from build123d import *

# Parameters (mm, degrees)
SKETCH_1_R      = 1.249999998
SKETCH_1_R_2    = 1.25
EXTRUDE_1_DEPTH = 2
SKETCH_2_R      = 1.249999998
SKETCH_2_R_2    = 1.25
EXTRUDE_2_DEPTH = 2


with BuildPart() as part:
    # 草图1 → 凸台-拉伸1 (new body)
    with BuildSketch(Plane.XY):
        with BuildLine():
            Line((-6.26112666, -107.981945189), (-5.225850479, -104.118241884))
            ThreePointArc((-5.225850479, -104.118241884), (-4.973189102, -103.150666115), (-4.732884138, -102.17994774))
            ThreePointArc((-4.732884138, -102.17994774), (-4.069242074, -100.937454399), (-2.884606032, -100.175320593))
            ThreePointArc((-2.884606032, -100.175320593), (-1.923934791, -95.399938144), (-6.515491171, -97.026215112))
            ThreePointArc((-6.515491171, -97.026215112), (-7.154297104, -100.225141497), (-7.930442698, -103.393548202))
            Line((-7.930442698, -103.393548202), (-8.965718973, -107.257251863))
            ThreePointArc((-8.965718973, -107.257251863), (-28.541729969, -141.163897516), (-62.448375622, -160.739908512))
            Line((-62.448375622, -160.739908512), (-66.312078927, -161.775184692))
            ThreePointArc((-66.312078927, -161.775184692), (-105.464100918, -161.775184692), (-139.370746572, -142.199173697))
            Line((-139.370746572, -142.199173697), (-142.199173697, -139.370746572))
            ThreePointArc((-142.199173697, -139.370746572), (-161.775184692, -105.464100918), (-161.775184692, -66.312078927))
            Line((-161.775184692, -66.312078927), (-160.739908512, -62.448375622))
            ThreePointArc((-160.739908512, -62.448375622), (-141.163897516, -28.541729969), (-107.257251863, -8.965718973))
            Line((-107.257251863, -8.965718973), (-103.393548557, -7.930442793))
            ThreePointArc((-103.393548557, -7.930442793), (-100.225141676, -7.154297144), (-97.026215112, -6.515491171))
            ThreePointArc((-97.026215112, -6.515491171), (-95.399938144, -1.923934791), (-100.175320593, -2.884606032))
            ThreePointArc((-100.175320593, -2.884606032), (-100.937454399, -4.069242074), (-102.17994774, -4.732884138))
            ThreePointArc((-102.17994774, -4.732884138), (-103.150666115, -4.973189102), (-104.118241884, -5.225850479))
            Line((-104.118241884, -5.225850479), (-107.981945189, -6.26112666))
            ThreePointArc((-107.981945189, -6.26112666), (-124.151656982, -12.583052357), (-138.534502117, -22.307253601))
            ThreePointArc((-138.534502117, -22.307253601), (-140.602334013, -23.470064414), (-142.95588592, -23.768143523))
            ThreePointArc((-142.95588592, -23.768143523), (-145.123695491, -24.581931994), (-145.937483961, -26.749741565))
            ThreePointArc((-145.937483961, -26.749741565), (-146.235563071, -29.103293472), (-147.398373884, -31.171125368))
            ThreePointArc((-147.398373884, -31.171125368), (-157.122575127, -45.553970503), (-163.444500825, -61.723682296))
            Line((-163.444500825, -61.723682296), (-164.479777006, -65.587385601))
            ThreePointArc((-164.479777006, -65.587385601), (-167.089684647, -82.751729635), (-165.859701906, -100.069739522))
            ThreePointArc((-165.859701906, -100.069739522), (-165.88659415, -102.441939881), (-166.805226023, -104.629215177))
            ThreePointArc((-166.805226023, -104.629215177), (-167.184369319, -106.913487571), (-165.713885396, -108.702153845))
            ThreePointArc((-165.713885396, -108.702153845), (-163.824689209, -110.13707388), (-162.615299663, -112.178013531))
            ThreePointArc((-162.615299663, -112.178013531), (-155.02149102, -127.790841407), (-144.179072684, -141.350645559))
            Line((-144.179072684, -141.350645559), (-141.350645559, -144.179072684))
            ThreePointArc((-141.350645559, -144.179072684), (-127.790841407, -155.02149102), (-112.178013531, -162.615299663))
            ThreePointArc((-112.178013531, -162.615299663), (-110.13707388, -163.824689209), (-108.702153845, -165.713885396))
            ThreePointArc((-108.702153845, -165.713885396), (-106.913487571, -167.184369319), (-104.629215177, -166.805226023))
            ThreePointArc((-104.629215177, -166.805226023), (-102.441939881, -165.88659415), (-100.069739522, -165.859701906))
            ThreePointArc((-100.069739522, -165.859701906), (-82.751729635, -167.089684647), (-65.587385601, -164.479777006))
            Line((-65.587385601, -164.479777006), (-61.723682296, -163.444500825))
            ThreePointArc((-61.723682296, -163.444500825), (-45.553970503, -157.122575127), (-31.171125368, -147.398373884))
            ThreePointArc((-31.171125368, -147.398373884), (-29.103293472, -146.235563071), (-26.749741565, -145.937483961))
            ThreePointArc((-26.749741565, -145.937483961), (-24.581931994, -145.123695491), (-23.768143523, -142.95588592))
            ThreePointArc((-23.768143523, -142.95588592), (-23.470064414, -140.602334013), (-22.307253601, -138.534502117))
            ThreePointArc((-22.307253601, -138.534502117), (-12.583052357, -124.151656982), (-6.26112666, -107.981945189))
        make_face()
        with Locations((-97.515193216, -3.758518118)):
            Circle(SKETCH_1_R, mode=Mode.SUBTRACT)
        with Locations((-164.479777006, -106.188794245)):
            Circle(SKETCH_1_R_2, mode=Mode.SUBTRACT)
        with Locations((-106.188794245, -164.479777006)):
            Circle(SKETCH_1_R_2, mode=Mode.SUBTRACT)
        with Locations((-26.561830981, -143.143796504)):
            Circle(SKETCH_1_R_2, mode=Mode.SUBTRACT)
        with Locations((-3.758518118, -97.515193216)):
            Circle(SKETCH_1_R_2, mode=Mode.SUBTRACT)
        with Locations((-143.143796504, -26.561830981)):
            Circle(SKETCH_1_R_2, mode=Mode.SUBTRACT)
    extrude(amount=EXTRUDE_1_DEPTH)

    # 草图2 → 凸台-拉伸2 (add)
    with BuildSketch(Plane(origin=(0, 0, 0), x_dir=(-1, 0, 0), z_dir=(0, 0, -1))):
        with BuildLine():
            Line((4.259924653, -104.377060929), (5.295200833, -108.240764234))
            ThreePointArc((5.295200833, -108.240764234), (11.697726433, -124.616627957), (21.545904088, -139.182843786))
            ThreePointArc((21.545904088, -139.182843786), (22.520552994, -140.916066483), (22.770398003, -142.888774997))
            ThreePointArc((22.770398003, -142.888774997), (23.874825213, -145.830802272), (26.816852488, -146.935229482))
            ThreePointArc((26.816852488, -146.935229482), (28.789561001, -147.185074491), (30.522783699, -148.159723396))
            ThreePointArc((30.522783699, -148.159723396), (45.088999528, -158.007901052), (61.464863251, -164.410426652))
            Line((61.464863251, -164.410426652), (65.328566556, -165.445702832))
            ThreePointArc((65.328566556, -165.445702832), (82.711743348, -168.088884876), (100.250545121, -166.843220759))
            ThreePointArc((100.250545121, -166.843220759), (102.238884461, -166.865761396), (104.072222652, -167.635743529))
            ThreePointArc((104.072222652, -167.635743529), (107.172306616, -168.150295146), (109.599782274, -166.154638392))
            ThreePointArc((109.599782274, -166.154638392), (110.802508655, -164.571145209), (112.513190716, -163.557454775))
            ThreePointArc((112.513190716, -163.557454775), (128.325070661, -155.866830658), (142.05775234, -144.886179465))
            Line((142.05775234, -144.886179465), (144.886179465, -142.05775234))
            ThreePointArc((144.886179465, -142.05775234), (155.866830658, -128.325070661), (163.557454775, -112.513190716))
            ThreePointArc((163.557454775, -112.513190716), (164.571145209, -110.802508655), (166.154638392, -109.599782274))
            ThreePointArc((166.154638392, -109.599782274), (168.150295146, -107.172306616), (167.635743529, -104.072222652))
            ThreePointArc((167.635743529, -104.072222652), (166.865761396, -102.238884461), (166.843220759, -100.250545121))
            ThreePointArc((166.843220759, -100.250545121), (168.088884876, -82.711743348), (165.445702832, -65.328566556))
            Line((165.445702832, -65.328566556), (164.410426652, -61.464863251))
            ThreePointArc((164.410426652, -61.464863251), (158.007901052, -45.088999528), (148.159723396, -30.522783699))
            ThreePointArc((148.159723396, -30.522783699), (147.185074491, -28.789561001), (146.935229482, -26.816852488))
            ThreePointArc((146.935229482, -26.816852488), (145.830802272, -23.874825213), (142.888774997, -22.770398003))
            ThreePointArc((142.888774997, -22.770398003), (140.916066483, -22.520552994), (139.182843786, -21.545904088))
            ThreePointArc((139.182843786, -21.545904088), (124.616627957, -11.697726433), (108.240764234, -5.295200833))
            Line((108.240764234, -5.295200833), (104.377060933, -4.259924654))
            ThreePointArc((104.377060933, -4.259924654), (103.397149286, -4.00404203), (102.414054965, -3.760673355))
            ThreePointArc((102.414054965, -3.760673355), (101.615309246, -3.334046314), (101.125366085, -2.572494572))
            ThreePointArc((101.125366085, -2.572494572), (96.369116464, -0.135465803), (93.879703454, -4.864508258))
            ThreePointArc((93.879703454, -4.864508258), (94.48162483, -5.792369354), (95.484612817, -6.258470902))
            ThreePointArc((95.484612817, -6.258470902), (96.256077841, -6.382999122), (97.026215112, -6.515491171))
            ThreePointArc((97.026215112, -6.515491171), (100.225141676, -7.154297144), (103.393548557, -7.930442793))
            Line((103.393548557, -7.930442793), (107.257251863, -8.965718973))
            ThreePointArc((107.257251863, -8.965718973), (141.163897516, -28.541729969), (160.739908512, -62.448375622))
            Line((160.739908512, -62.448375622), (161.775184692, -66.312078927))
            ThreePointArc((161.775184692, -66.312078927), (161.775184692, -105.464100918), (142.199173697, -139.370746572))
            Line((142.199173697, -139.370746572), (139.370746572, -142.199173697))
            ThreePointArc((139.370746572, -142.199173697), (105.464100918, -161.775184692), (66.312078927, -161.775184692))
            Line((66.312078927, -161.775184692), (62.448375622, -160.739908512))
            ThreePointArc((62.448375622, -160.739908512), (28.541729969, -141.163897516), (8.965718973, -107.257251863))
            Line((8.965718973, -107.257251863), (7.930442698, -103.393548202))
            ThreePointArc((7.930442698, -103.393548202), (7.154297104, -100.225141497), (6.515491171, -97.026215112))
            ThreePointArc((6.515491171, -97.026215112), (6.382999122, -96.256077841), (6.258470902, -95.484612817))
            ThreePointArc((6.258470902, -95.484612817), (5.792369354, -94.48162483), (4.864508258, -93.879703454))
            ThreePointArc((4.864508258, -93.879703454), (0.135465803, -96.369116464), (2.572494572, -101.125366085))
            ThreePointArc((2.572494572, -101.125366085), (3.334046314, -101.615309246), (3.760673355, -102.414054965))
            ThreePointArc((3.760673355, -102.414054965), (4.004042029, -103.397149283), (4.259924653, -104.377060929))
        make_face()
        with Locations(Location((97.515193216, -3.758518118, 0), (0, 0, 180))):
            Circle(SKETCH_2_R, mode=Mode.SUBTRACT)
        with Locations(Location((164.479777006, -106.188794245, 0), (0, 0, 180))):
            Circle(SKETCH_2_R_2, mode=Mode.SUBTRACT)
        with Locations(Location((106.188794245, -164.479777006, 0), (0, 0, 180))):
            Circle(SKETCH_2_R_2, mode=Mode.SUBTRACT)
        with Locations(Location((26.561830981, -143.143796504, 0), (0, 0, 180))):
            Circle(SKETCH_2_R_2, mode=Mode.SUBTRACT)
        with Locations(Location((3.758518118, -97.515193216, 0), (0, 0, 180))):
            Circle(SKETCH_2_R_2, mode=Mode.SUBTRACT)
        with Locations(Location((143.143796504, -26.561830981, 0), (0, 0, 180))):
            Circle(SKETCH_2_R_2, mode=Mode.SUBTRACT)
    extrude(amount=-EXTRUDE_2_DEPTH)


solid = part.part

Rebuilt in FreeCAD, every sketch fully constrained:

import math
import FreeCAD as App
import Part
import Sketcher

V = App.Vector
Q = App.Units.Quantity

doc = App.newDocument("Part")
body = doc.addObject("PartDesign::Body", "Body")

# Sketch on XY plane
sketch1 = body.newObject("Sketcher::SketchObject", "Sketch")
sketch1.AttachmentSupport = (doc.getObject("XY_Plane"), [""])
sketch1.MapMode = "FlatFace"
sketch1.addGeometry([
    Part.LineSegment(V(-6.3, -108, 0), V(-5.2, -104.1, 0)),  # 0
    Part.ArcOfCircle(Part.Circle(V(-81, -83.8, 0), V(0, 0, 1), 78.4), math.radians(-15), math.radians(-13.54)),  # 1
    Part.ArcOfCircle(Part.Circle(V(-2, -102.8, 0), V(0, 0, 1), 2.8), math.radians(108), math.radians(166)),  # 2
    Part.ArcOfCircle(Part.Circle(V(-3.8, -97.5, 0), V(0, 0, 1), 2.8), math.radians(-72), math.radians(170)),  # 3
    Part.ArcOfCircle(Part.Circle(V(-81, -83.8, 0), V(0, 0, 1), 75.6), math.radians(-15), math.radians(-10.06)),  # 4
    Part.LineSegment(V(-7.9, -103.4, 0), V(-9, -107.3, 0)),  # 5
    Part.ArcOfCircle(Part.Circle(V(-82, -87.7, 0), V(0, 0, 1), 75.6), math.radians(-75), math.radians(-15)),  # 6
    Part.LineSegment(V(-62.4, -160.7, 0), V(-66.3, -161.8, 0)),  # 7
    Part.ArcOfCircle(Part.Circle(V(-85.9, -88.7, 0), V(0, 0, 1), 75.6), math.radians(-135), math.radians(-75)),  # 8
    Part.LineSegment(V(-139.4, -142.2, 0), V(-142.2, -139.4, 0)),  # 9
    Part.ArcOfCircle(Part.Circle(V(-88.7, -85.9, 0), V(0, 0, 1), 75.6), math.radians(165), math.radians(225)),  # 10
    Part.LineSegment(V(-161.8, -66.3, 0), V(-160.7, -62.4, 0)),  # 11
    Part.ArcOfCircle(Part.Circle(V(-87.7, -82, 0), V(0, 0, 1), 75.6), math.radians(105), math.radians(165)),  # 12
    Part.LineSegment(V(-107.3, -9, 0), V(-103.4, -7.9, 0)),  # 13
    Part.ArcOfCircle(Part.Circle(V(-83.8, -81, 0), V(0, 0, 1), 75.6), math.radians(100.06), math.radians(105)),  # 14
    Part.ArcOfCircle(Part.Circle(V(-97.5, -3.8, 0), V(0, 0, 1), 2.8), math.radians(-80), math.radians(162)),  # 15
    Part.ArcOfCircle(Part.Circle(V(-102.8, -2, 0), V(0, 0, 1), 2.8), math.radians(-76), math.radians(-18)),  # 16
    Part.ArcOfCircle(Part.Circle(V(-83.8, -81, 0), V(0, 0, 1), 78.4), math.radians(103.54), math.radians(105)),  # 17
    Part.LineSegment(V(-104.1, -5.2, 0), V(-108, -6.3, 0)),  # 18
    Part.ArcOfCircle(Part.Circle(V(-87.7, -82, 0), V(0, 0, 1), 78.4), math.radians(105), math.radians(130)),  # 19
    Part.ArcOfCircle(Part.Circle(V(-142.5, -17.6, 0), V(0, 0, 1), 6.2), math.radians(-94), math.radians(-50)),  # 20
    Part.ArcOfCircle(Part.Circle(V(-143.1, -26.6, 0), V(0, 0, 1), 2.8), math.radians(86), math.radians(184)),  # 21
    Part.ArcOfCircle(Part.Circle(V(-152.1, -27.2, 0), V(0, 0, 1), 6.2), math.radians(-40), math.radians(4)),  # 22
    Part.ArcOfCircle(Part.Circle(V(-87.7, -82, 0), V(0, 0, 1), 78.4), math.radians(140), math.radians(165)),  # 23
    Part.LineSegment(V(-163.4, -61.7, 0), V(-164.5, -65.6, 0)),  # 24
    Part.ArcOfCircle(Part.Circle(V(-88.7, -85.9, 0), V(0, 0, 1), 78.4), math.radians(165), math.radians(190)),  # 25
    Part.ArcOfCircle(Part.Circle(V(-171.9, -101.2, 0), V(0, 0, 1), 6.2), math.radians(-34), math.radians(10)),  # 26
    Part.ArcOfCircle(Part.Circle(V(-164.5, -106.2, 0), V(0, 0, 1), 2.8), math.radians(146), math.radians(244)),  # 27
    Part.ArcOfCircle(Part.Circle(V(-168.4, -114.2, 0), V(0, 0, 1), 6.2), math.radians(20), math.radians(64)),  # 28
    Part.ArcOfCircle(Part.Circle(V(-88.7, -85.9, 0), V(0, 0, 1), 78.4), math.radians(-160), math.radians(-135)),  # 29
    Part.LineSegment(V(-144.2, -141.4, 0), V(-141.4, -144.2, 0)),  # 30
    Part.ArcOfCircle(Part.Circle(V(-85.9, -88.7, 0), V(0, 0, 1), 78.4), math.radians(-135), math.radians(-110)),  # 31
    Part.ArcOfCircle(Part.Circle(V(-114.2, -168.4, 0), V(0, 0, 1), 6.2), math.radians(26), math.radians(70)),  # 32
    Part.ArcOfCircle(Part.Circle(V(-106.2, -164.5, 0), V(0, 0, 1), 2.8), math.radians(-154), math.radians(-56)),  # 33
    Part.ArcOfCircle(Part.Circle(V(-101.2, -171.9, 0), V(0, 0, 1), 6.2), math.radians(80), math.radians(124)),  # 34
    Part.ArcOfCircle(Part.Circle(V(-85.9, -88.7, 0), V(0, 0, 1), 78.4), math.radians(-100), math.radians(-75)),  # 35
    Part.LineSegment(V(-65.6, -164.5, 0), V(-61.7, -163.4, 0)),  # 36
    Part.ArcOfCircle(Part.Circle(V(-82, -87.7, 0), V(0, 0, 1), 78.4), math.radians(-75), math.radians(-50)),  # 37
    Part.ArcOfCircle(Part.Circle(V(-27.2, -152.1, 0), V(0, 0, 1), 6.2), math.radians(86), math.radians(130)),  # 38
    Part.ArcOfCircle(Part.Circle(V(-26.6, -143.1, 0), V(0, 0, 1), 2.8), math.radians(-94), math.radians(4)),  # 39
    Part.ArcOfCircle(Part.Circle(V(-17.6, -142.5, 0), V(0, 0, 1), 6.2), math.radians(140), math.radians(184)),  # 40
    Part.ArcOfCircle(Part.Circle(V(-82, -87.7, 0), V(0, 0, 1), 78.4), math.radians(-40), math.radians(-15)),  # 41
    Part.Circle(V(-106.2, -164.5, 0), V(0, 0, 1), 1.2),  # 42
    Part.Circle(V(-164.5, -106.2, 0), V(0, 0, 1), 1.2),  # 43
    Part.Circle(V(-26.6, -143.1, 0), V(0, 0, 1), 1.2),  # 44
    Part.Circle(V(-3.8, -97.5, 0), V(0, 0, 1), 1.2),  # 45
    Part.Circle(V(-143.1, -26.6, 0), V(0, 0, 1), 1.2),  # 46
    Part.Circle(V(-97.5, -3.8, 0), V(0, 0, 1), 1.2),  # 47
], False)
sketch1.addConstraint([
    Sketcher.Constraint("Tangent", 0, 2, 1, 1),
    Sketcher.Constraint("Tangent", 1, 2, 2, 2),
    Sketcher.Constraint("Tangent", 2, 1, 3, 1),
    Sketcher.Constraint("Tangent", 3, 2, 4, 2),
    Sketcher.Constraint("Tangent", 4, 1, 5, 1),
    Sketcher.Constraint("Tangent", 5, 2, 6, 2),
    Sketcher.Constraint("Tangent", 6, 1, 7, 1),
    Sketcher.Constraint("Tangent", 7, 2, 8, 2),
    Sketcher.Constraint("Tangent", 8, 1, 9, 1),
    Sketcher.Constraint("Tangent", 9, 2, 10, 2),
    Sketcher.Constraint("Tangent", 10, 1, 11, 1),
    Sketcher.Constraint("Tangent", 11, 2, 12, 2),
    Sketcher.Constraint("Tangent", 12, 1, 13, 1),
    Sketcher.Constraint("Tangent", 13, 2, 14, 2),
    Sketcher.Constraint("Tangent", 14, 1, 15, 1),
    Sketcher.Constraint("Tangent", 15, 2, 16, 2),
    Sketcher.Constraint("Tangent", 16, 1, 17, 1),
    Sketcher.Constraint("Tangent", 17, 2, 18, 1),
    Sketcher.Constraint("Tangent", 18, 2, 19, 1),
    Sketcher.Constraint("Tangent", 19, 2, 20, 2),
    Sketcher.Constraint("Tangent", 20, 1, 21, 1),
    Sketcher.Constraint("Tangent", 21, 2, 22, 2),
    Sketcher.Constraint("Tangent", 22, 1, 23, 1),
    Sketcher.Constraint("Tangent", 23, 2, 24, 1),
    Sketcher.Constraint("Tangent", 24, 2, 25, 1),
    Sketcher.Constraint("Tangent", 25, 2, 26, 2),
    Sketcher.Constraint("Tangent", 26, 1, 27, 1),
    Sketcher.Constraint("Tangent", 27, 2, 28, 2),
    Sketcher.Constraint("Tangent", 28, 1, 29, 1),
    Sketcher.Constraint("Tangent", 29, 2, 30, 1),
    Sketcher.Constraint("Tangent", 30, 2, 31, 1),
    Sketcher.Constraint("Tangent", 31, 2, 32, 2),
    Sketcher.Constraint("Tangent", 32, 1, 33, 1),
    Sketcher.Constraint("Tangent", 33, 2, 34, 2),
    Sketcher.Constraint("Tangent", 34, 1, 35, 1),
    Sketcher.Constraint("Tangent", 35, 2, 36, 1),
    Sketcher.Constraint("Tangent", 36, 2, 37, 1),
    Sketcher.Constraint("Tangent", 37, 2, 38, 2),
    Sketcher.Constraint("Tangent", 38, 1, 39, 1),
    Sketcher.Constraint("Tangent", 39, 2, 40, 2),
    Sketcher.Constraint("Tangent", 40, 1, 41, 1),
    Sketcher.Constraint("Tangent", 41, 2, 0, 1),
    Sketcher.Constraint("Coincident", 4, 3, 1, 3),
    Sketcher.Constraint("Coincident", 17, 3, 14, 3),
    Sketcher.Constraint("Coincident", 19, 3, 12, 3),
    Sketcher.Constraint("Coincident", 23, 3, 12, 3),
    Sketcher.Constraint("Coincident", 25, 3, 10, 3),
    Sketcher.Constraint("Coincident", 29, 3, 10, 3),
    Sketcher.Constraint("Coincident", 31, 3, 8, 3),
    Sketcher.Constraint("Coincident", 35, 3, 8, 3),
    Sketcher.Constraint("Coincident", 37, 3, 6, 3),
    Sketcher.Constraint("Coincident", 41, 3, 6, 3),
    Sketcher.Constraint("Coincident", 42, 3, 33, 3),
    Sketcher.Constraint("Coincident", 43, 3, 27, 3),
    Sketcher.Constraint("Coincident", 44, 3, 39, 3),
    Sketcher.Constraint("Coincident", 45, 3, 3, 3),
    Sketcher.Constraint("Coincident", 46, 3, 21, 3),
    Sketcher.Constraint("Coincident", 47, 3, 15, 3),
    Sketcher.Constraint("Equal", 2, 3),
    Sketcher.Constraint("Equal", 4, 6),
    Sketcher.Constraint("Equal", 6, 8),
    Sketcher.Constraint("Equal", 8, 10),
    Sketcher.Constraint("Equal", 10, 12),
    Sketcher.Constraint("Equal", 12, 14),
    Sketcher.Constraint("Equal", 3, 15),
    Sketcher.Constraint("Equal", 15, 16),
    Sketcher.Constraint("Equal", 1, 17),
    Sketcher.Constraint("Equal", 16, 21),
    Sketcher.Constraint("Equal", 20, 22),
    Sketcher.Constraint("Equal", 19, 23),
    Sketcher.Constraint("Equal", 23, 25),
    Sketcher.Constraint("Equal", 22, 26),
    Sketcher.Constraint("Equal", 21, 27),
    Sketcher.Constraint("Equal", 26, 28),
    Sketcher.Constraint("Equal", 25, 29),
    Sketcher.Constraint("Equal", 29, 31),
    Sketcher.Constraint("Equal", 28, 32),
    Sketcher.Constraint("Equal", 27, 33),
    Sketcher.Constraint("Equal", 32, 34),
    Sketcher.Constraint("Equal", 31, 35),
    Sketcher.Constraint("Equal", 35, 37),
    Sketcher.Constraint("Equal", 34, 38),
    Sketcher.Constraint("Equal", 33, 39),
    Sketcher.Constraint("Equal", 38, 40),
    Sketcher.Constraint("Equal", 37, 41),
    Sketcher.Constraint("Equal", 42, 43),
    Sketcher.Constraint("Equal", 43, 44),
    Sketcher.Constraint("Equal", 44, 45),
    Sketcher.Constraint("Equal", 45, 46),
    Sketcher.Constraint("Equal", 46, 47),
    Sketcher.Constraint("Parallel", 0, 5),
    Sketcher.Constraint("Parallel", 5, 11),
    Sketcher.Constraint("Parallel", 7, 13),
    Sketcher.Constraint("Horizontal", 42, 3, 35, 2),
    Sketcher.Constraint("Vertical", 43, 3, 24, 2),
    Sketcher.Constraint("Equal", 5, 7),
    Sketcher.Constraint("Equal", 7, 9),
    Sketcher.Constraint("Equal", 9, 11),
    Sketcher.Constraint("Equal", 11, 13),
    Sketcher.Constraint("Diameter", 42, 2.5),
    Sketcher.Constraint("Radius", 2, 2.8),
    Sketcher.Constraint("Angle", 0, Q("75 deg")),
    Sketcher.Constraint("Angle", 7, Q("-165 deg")),
    Sketcher.Constraint("Angle", 9, Q("135 deg")),
    Sketcher.Constraint("Distance", 0, 4.0),
    Sketcher.Constraint("Radius", 4, 75.635898),
    Sketcher.Constraint("Radius", 19, 78.435898),
    Sketcher.Constraint("Radius", 20, 6.179842),
    Sketcher.Constraint("DistanceX", 23, 2, -1, 1, 163.444501),
    Sketcher.Constraint("DistanceX", 25, 2, -1, 1, 165.859702),
    Sketcher.Constraint("DistanceY", 31, 2, -1, 1, 162.6153),
    Sketcher.Constraint("DistanceY", 34, 1, -1, 1, 165.859702),
    Sketcher.Constraint("DistanceX", 3, 3, -1, 1, 3.758518),
    Sketcher.Constraint("DistanceY", 15, 3, -1, 1, 3.758518),
    Sketcher.Constraint("DistanceX", 20, 3, -1, 1, 142.541151),
    Sketcher.Constraint("DistanceY", 21, 3, -1, 1, 26.561831),
    Sketcher.Constraint("DistanceX", 39, 3, -1, 1, 26.561831),
    Sketcher.Constraint("DistanceY", 40, 3, -1, 1, 142.541151),
])
pad1 = body.newObject("PartDesign::Pad", "Pad")
pad1.Profile = sketch1
pad1.Length = 2

# Sketch on XY plane
sketch2 = body.newObject("Sketcher::SketchObject", "Sketch001")
sketch2.AttachmentSupport = (doc.getObject("XY_Plane"), [""])
sketch2.MapMode = "FlatFace"
sketch2.addGeometry([
    Part.LineSegment(V(-4.3, -104.4, 0), V(-5.3, -108.2, 0)),  # 0
    Part.ArcOfCircle(Part.Circle(V(-82, -87.7, 0), V(0, 0, 1), 79.4), math.radians(-40), math.radians(-15)),  # 1
    Part.ArcOfCircle(Part.Circle(V(-17.6, -142.5, 0), V(0, 0, 1), 5.2), math.radians(140), math.radians(184)),  # 2
    Part.ArcOfCircle(Part.Circle(V(-26.6, -143.1, 0), V(0, 0, 1), 3.8), math.radians(-94), math.radians(4)),  # 3
    Part.ArcOfCircle(Part.Circle(V(-27.2, -152.1, 0), V(0, 0, 1), 5.2), math.radians(86), math.radians(130)),  # 4
    Part.ArcOfCircle(Part.Circle(V(-82, -87.7, 0), V(0, 0, 1), 79.4), math.radians(-75), math.radians(-50)),  # 5
    Part.LineSegment(V(-61.5, -164.4, 0), V(-65.3, -165.4, 0)),  # 6
    Part.ArcOfCircle(Part.Circle(V(-85.9, -88.7, 0), V(0, 0, 1), 79.4), math.radians(-100), math.radians(-75)),  # 7
    Part.ArcOfCircle(Part.Circle(V(-101.2, -171.9, 0), V(0, 0, 1), 5.2), math.radians(80), math.radians(124)),  # 8
    Part.ArcOfCircle(Part.Circle(V(-106.2, -164.5, 0), V(0, 0, 1), 3.8), math.radians(-154), math.radians(-56)),  # 9
    Part.ArcOfCircle(Part.Circle(V(-114.2, -168.4, 0), V(0, 0, 1), 5.2), math.radians(26), math.radians(70)),  # 10
    Part.ArcOfCircle(Part.Circle(V(-85.9, -88.7, 0), V(0, 0, 1), 79.4), math.radians(-135), math.radians(-110)),  # 11
    Part.LineSegment(V(-142.1, -144.9, 0), V(-144.9, -142.1, 0)),  # 12
    Part.ArcOfCircle(Part.Circle(V(-88.7, -85.9, 0), V(0, 0, 1), 79.4), math.radians(-160), math.radians(-135)),  # 13
    Part.ArcOfCircle(Part.Circle(V(-168.4, -114.2, 0), V(0, 0, 1), 5.2), math.radians(20), math.radians(64)),  # 14
    Part.ArcOfCircle(Part.Circle(V(-164.5, -106.2, 0), V(0, 0, 1), 3.8), math.radians(146), math.radians(244)),  # 15
    Part.ArcOfCircle(Part.Circle(V(-171.9, -101.2, 0), V(0, 0, 1), 5.2), math.radians(-34), math.radians(10)),  # 16
    Part.ArcOfCircle(Part.Circle(V(-88.7, -85.9, 0), V(0, 0, 1), 79.4), math.radians(165), math.radians(190)),  # 17
    Part.LineSegment(V(-165.4, -65.3, 0), V(-164.4, -61.5, 0)),  # 18
    Part.ArcOfCircle(Part.Circle(V(-87.7, -82, 0), V(0, 0, 1), 79.4), math.radians(140), math.radians(165)),  # 19
    Part.ArcOfCircle(Part.Circle(V(-152.1, -27.2, 0), V(0, 0, 1), 5.2), math.radians(-40), math.radians(4)),  # 20
    Part.ArcOfCircle(Part.Circle(V(-143.1, -26.6, 0), V(0, 0, 1), 3.8), math.radians(86), math.radians(184)),  # 21
    Part.ArcOfCircle(Part.Circle(V(-142.5, -17.6, 0), V(0, 0, 1), 5.2), math.radians(-94), math.radians(-50)),  # 22
    Part.ArcOfCircle(Part.Circle(V(-87.7, -82, 0), V(0, 0, 1), 79.4), math.radians(105), math.radians(130)),  # 23
    Part.LineSegment(V(-108.2, -5.3, 0), V(-104.4, -4.3, 0)),  # 24
    Part.ArcOfCircle(Part.Circle(V(-83.8, -81, 0), V(0, 0, 1), 79.4), math.radians(103.54), math.radians(105)),  # 25
    Part.ArcOfCircle(Part.Circle(V(-102.8, -2, 0), V(0, 0, 1), 1.8), math.radians(-76), math.radians(-18)),  # 26
    Part.ArcOfCircle(Part.Circle(V(-97.5, -3.8, 0), V(0, 0, 1), 3.8), math.radians(-17), math.radians(162)),  # 27
    Part.ArcOfCircle(Part.Circle(V(-95.8, -4.3, 0), V(0, 0, 1), 2), math.radians(-81), math.radians(-17)),  # 28
    Part.ArcOfCircle(Part.Circle(V(-83.8, -81, 0), V(0, 0, 1), 75.6), math.radians(98.87), math.radians(100.06)),  # 29
    Part.ArcOfCircle(Part.Circle(V(-83.8, -81, 0), V(0, 0, 1), 75.6), math.radians(100.06), math.radians(105)),  # 30
    Part.LineSegment(V(-103.4, -7.9, 0), V(-107.3, -9, 0)),  # 31
    Part.ArcOfCircle(Part.Circle(V(-87.7, -82, 0), V(0, 0, 1), 75.6), math.radians(105), math.radians(165)),  # 32
    Part.LineSegment(V(-160.7, -62.4, 0), V(-161.8, -66.3, 0)),  # 33
    Part.ArcOfCircle(Part.Circle(V(-88.7, -85.9, 0), V(0, 0, 1), 75.6), math.radians(165), math.radians(225)),  # 34
    Part.LineSegment(V(-142.2, -139.4, 0), V(-139.4, -142.2, 0)),  # 35
    Part.ArcOfCircle(Part.Circle(V(-85.9, -88.7, 0), V(0, 0, 1), 75.6), math.radians(-135), math.radians(-75)),  # 36
    Part.LineSegment(V(-66.3, -161.8, 0), V(-62.4, -160.7, 0)),  # 37
    Part.ArcOfCircle(Part.Circle(V(-82, -87.7, 0), V(0, 0, 1), 75.6), math.radians(-75), math.radians(-15)),  # 38
    Part.LineSegment(V(-9, -107.3, 0), V(-7.9, -103.4, 0)),  # 39
    Part.ArcOfCircle(Part.Circle(V(-81, -83.8, 0), V(0, 0, 1), 75.6), math.radians(-15), math.radians(-10.06)),  # 40
    Part.ArcOfCircle(Part.Circle(V(-81, -83.8, 0), V(0, 0, 1), 75.6), math.radians(-10.06), math.radians(-8.87)),  # 41
    Part.ArcOfCircle(Part.Circle(V(-4.3, -95.8, 0), V(0, 0, 1), 2), math.radians(107), math.radians(171)),  # 42
    Part.ArcOfCircle(Part.Circle(V(-3.8, -97.5, 0), V(0, 0, 1), 3.8), math.radians(-72), math.radians(107)),  # 43
    Part.ArcOfCircle(Part.Circle(V(-2, -102.8, 0), V(0, 0, 1), 1.8), math.radians(108), math.radians(166)),  # 44
    Part.ArcOfCircle(Part.Circle(V(-81, -83.8, 0), V(0, 0, 1), 79.4), math.radians(-15), math.radians(-13.54)),  # 45
    Part.Circle(V(-26.6, -143.1, 0), V(0, 0, 1), 1.2),  # 46
    Part.Circle(V(-3.8, -97.5, 0), V(0, 0, 1), 1.2),  # 47
    Part.Circle(V(-106.2, -164.5, 0), V(0, 0, 1), 1.2),  # 48
    Part.Circle(V(-164.5, -106.2, 0), V(0, 0, 1), 1.2),  # 49
    Part.Circle(V(-97.5, -3.8, 0), V(0, 0, 1), 1.2),  # 50
    Part.Circle(V(-143.1, -26.6, 0), V(0, 0, 1), 1.2),  # 51
], False)
sketch2.addConstraint([
    Sketcher.Constraint("Tangent", 0, 2, 1, 2),
    Sketcher.Constraint("Tangent", 1, 1, 2, 1),
    Sketcher.Constraint("Tangent", 2, 2, 3, 2),
    Sketcher.Constraint("Tangent", 3, 1, 4, 1),
    Sketcher.Constraint("Tangent", 4, 2, 5, 2),
    Sketcher.Constraint("Tangent", 5, 1, 6, 1),
    Sketcher.Constraint("Tangent", 6, 2, 7, 2),
    Sketcher.Constraint("Tangent", 7, 1, 8, 1),
    Sketcher.Constraint("Tangent", 8, 2, 9, 2),
    Sketcher.Constraint("Tangent", 9, 1, 10, 1),
    Sketcher.Constraint("Tangent", 10, 2, 11, 2),
    Sketcher.Constraint("Tangent", 11, 1, 12, 1),
    Sketcher.Constraint("Tangent", 12, 2, 13, 2),
    Sketcher.Constraint("Tangent", 13, 1, 14, 1),
    Sketcher.Constraint("Tangent", 14, 2, 15, 2),
    Sketcher.Constraint("Tangent", 15, 1, 16, 1),
    Sketcher.Constraint("Tangent", 16, 2, 17, 2),
    Sketcher.Constraint("Tangent", 17, 1, 18, 1),
    Sketcher.Constraint("Tangent", 18, 2, 19, 2),
    Sketcher.Constraint("Tangent", 19, 1, 20, 1),
    Sketcher.Constraint("Tangent", 20, 2, 21, 2),
    Sketcher.Constraint("Tangent", 21, 1, 22, 1),
    Sketcher.Constraint("Tangent", 22, 2, 23, 2),
    Sketcher.Constraint("Tangent", 23, 1, 24, 1),
    Sketcher.Constraint("Tangent", 24, 2, 25, 2),
    Sketcher.Constraint("Tangent", 25, 1, 26, 1),
    Sketcher.Constraint("Tangent", 26, 2, 27, 2),
    Sketcher.Constraint("Tangent", 27, 1, 28, 2),
    Sketcher.Constraint("Tangent", 28, 1, 29, 1),
    Sketcher.Constraint("Tangent", 29, 2, 30, 1),
    Sketcher.Constraint("Tangent", 30, 2, 31, 1),
    Sketcher.Constraint("Tangent", 31, 2, 32, 1),
    Sketcher.Constraint("Tangent", 32, 2, 33, 1),
    Sketcher.Constraint("Tangent", 33, 2, 34, 1),
    Sketcher.Constraint("Tangent", 34, 2, 35, 1),
    Sketcher.Constraint("Tangent", 35, 2, 36, 1),
    Sketcher.Constraint("Tangent", 36, 2, 37, 1),
    Sketcher.Constraint("Tangent", 37, 2, 38, 1),
    Sketcher.Constraint("Tangent", 38, 2, 39, 1),
    Sketcher.Constraint("Tangent", 39, 2, 40, 1),
    Sketcher.Constraint("Tangent", 40, 2, 41, 1),
    Sketcher.Constraint("Tangent", 41, 2, 42, 2),
    Sketcher.Constraint("Tangent", 42, 1, 43, 2),
    Sketcher.Constraint("Tangent", 43, 1, 44, 1),
    Sketcher.Constraint("Tangent", 44, 2, 45, 2),
    Sketcher.Constraint("Tangent", 45, 1, 0, 1),
    Sketcher.Constraint("Coincident", 5, 3, 1, 3),
    Sketcher.Constraint("Coincident", 11, 3, 7, 3),
    Sketcher.Constraint("Coincident", 17, 3, 13, 3),
    Sketcher.Constraint("Coincident", 23, 3, 19, 3),
    Sketcher.Constraint("Coincident", 29, 3, 25, 3),
    Sketcher.Constraint("Coincident", 32, 3, 19, 3),
    Sketcher.Constraint("Coincident", 34, 3, 13, 3),
    Sketcher.Constraint("Coincident", 36, 3, 7, 3),
    Sketcher.Constraint("Coincident", 38, 3, 1, 3),
    Sketcher.Constraint("Coincident", 45, 3, 40, 3),
    Sketcher.Constraint("Coincident", 46, 3, 3, 3),
    Sketcher.Constraint("Coincident", 47, 3, 43, 3),
    Sketcher.Constraint("Coincident", 48, 3, 9, 3),
    Sketcher.Constraint("Coincident", 49, 3, 15, 3),
    Sketcher.Constraint("Coincident", 50, 3, 27, 3),
    Sketcher.Constraint("Coincident", 51, 3, 21, 3),
    Sketcher.Constraint("Equal", 2, 4),
    Sketcher.Constraint("Equal", 1, 5),
    Sketcher.Constraint("Equal", 5, 7),
    Sketcher.Constraint("Equal", 4, 8),
    Sketcher.Constraint("Equal", 3, 9),
    Sketcher.Constraint("Equal", 8, 10),
    Sketcher.Constraint("Equal", 7, 11),
    Sketcher.Constraint("Equal", 11, 13),
    Sketcher.Constraint("Equal", 10, 14),
    Sketcher.Constraint("Equal", 9, 15),
    Sketcher.Constraint("Equal", 14, 16),
    Sketcher.Constraint("Equal", 13, 17),
    Sketcher.Constraint("Equal", 17, 19),
    Sketcher.Constraint("Equal", 16, 20),
    Sketcher.Constraint("Equal", 15, 21),
    Sketcher.Constraint("Equal", 20, 22),
    Sketcher.Constraint("Equal", 19, 23),
    Sketcher.Constraint("Equal", 23, 25),
    Sketcher.Constraint("Equal", 21, 27),
    Sketcher.Constraint("Equal", 30, 32),
    Sketcher.Constraint("Equal", 32, 34),
    Sketcher.Constraint("Equal", 34, 36),
    Sketcher.Constraint("Equal", 36, 38),
    Sketcher.Constraint("Equal", 38, 40),
    Sketcher.Constraint("Equal", 29, 41),
    Sketcher.Constraint("Equal", 28, 42),
    Sketcher.Constraint("Equal", 27, 43),
    Sketcher.Constraint("Equal", 26, 44),
    Sketcher.Constraint("Equal", 46, 47),
    Sketcher.Constraint("Equal", 47, 48),
    Sketcher.Constraint("Equal", 48, 49),
    Sketcher.Constraint("Equal", 49, 50),
    Sketcher.Constraint("Equal", 50, 51),
    Sketcher.Constraint("Parallel", 0, 18),
    Sketcher.Constraint("Parallel", 6, 24),
    Sketcher.Constraint("Parallel", 24, 31),
    Sketcher.Constraint("Parallel", 33, 39),
    Sketcher.Constraint("Equal", 0, 6),
    Sketcher.Constraint("Equal", 6, 12),
    Sketcher.Constraint("Equal", 12, 18),
    Sketcher.Constraint("Equal", 18, 24),
    Sketcher.Constraint("Radius", 28, 2.0),
    Sketcher.Constraint("Diameter", 46, 2.5),
    Sketcher.Constraint("Radius", 3, 3.8),
    Sketcher.Constraint("Radius", 26, 1.8),
    Sketcher.Constraint("Angle", 0, Q("-105 deg")),
    Sketcher.Constraint("Angle", 6, Q("-165 deg")),
    Sketcher.Constraint("Angle", 12, Q("135 deg")),
    Sketcher.Constraint("Distance", 0, 4.0),
    Sketcher.Constraint("Radius", 1, 79.435898),
    Sketcher.Constraint("Radius", 30, 75.635899),
    Sketcher.Constraint("Radius", 2, 5.179842),
    Sketcher.Constraint("DistanceX", 0, 2, -1, 1, 5.295201),
    Sketcher.Constraint("DistanceX", 2, 2, -1, 1, 22.770398),
    Sketcher.Constraint("DistanceY", 21, 1, -1, 1, 22.770398),
    Sketcher.Constraint("DistanceY", 23, 1, -1, 1, 5.295201),
    Sketcher.Constraint("DistanceY", 2, 3, -1, 1, 142.541151),
    Sketcher.Constraint("DistanceX", 8, 3, -1, 1, 101.18709),
    Sketcher.Constraint("DistanceY", 10, 3, -1, 1, 168.437669),
    Sketcher.Constraint("DistanceX", 14, 3, -1, 1, 168.437669),
    Sketcher.Constraint("DistanceY", 16, 3, -1, 1, 101.18709),
    Sketcher.Constraint("DistanceY", 21, 3, -1, 1, 26.561831),
    Sketcher.Constraint("DistanceY", 27, 3, -1, 1, 3.758518),
    Sketcher.Constraint("DistanceX", 28, 3, -1, 1, 95.793119),
    Sketcher.Constraint("DistanceX", 42, 3, -1, 1, 4.282408),
    Sketcher.Constraint("DistanceX", 43, 3, -1, 1, 3.758518),
    Sketcher.Constraint("DistanceY", 29, 2, -1, 1, 6.515491),
    Sketcher.Constraint("DistanceX", 40, 2, -1, 1, 6.515491),
])
pad2 = body.newObject("PartDesign::Pad", "Pad001")
pad2.Profile = sketch2
pad2.Length = 2

doc.recompute()
